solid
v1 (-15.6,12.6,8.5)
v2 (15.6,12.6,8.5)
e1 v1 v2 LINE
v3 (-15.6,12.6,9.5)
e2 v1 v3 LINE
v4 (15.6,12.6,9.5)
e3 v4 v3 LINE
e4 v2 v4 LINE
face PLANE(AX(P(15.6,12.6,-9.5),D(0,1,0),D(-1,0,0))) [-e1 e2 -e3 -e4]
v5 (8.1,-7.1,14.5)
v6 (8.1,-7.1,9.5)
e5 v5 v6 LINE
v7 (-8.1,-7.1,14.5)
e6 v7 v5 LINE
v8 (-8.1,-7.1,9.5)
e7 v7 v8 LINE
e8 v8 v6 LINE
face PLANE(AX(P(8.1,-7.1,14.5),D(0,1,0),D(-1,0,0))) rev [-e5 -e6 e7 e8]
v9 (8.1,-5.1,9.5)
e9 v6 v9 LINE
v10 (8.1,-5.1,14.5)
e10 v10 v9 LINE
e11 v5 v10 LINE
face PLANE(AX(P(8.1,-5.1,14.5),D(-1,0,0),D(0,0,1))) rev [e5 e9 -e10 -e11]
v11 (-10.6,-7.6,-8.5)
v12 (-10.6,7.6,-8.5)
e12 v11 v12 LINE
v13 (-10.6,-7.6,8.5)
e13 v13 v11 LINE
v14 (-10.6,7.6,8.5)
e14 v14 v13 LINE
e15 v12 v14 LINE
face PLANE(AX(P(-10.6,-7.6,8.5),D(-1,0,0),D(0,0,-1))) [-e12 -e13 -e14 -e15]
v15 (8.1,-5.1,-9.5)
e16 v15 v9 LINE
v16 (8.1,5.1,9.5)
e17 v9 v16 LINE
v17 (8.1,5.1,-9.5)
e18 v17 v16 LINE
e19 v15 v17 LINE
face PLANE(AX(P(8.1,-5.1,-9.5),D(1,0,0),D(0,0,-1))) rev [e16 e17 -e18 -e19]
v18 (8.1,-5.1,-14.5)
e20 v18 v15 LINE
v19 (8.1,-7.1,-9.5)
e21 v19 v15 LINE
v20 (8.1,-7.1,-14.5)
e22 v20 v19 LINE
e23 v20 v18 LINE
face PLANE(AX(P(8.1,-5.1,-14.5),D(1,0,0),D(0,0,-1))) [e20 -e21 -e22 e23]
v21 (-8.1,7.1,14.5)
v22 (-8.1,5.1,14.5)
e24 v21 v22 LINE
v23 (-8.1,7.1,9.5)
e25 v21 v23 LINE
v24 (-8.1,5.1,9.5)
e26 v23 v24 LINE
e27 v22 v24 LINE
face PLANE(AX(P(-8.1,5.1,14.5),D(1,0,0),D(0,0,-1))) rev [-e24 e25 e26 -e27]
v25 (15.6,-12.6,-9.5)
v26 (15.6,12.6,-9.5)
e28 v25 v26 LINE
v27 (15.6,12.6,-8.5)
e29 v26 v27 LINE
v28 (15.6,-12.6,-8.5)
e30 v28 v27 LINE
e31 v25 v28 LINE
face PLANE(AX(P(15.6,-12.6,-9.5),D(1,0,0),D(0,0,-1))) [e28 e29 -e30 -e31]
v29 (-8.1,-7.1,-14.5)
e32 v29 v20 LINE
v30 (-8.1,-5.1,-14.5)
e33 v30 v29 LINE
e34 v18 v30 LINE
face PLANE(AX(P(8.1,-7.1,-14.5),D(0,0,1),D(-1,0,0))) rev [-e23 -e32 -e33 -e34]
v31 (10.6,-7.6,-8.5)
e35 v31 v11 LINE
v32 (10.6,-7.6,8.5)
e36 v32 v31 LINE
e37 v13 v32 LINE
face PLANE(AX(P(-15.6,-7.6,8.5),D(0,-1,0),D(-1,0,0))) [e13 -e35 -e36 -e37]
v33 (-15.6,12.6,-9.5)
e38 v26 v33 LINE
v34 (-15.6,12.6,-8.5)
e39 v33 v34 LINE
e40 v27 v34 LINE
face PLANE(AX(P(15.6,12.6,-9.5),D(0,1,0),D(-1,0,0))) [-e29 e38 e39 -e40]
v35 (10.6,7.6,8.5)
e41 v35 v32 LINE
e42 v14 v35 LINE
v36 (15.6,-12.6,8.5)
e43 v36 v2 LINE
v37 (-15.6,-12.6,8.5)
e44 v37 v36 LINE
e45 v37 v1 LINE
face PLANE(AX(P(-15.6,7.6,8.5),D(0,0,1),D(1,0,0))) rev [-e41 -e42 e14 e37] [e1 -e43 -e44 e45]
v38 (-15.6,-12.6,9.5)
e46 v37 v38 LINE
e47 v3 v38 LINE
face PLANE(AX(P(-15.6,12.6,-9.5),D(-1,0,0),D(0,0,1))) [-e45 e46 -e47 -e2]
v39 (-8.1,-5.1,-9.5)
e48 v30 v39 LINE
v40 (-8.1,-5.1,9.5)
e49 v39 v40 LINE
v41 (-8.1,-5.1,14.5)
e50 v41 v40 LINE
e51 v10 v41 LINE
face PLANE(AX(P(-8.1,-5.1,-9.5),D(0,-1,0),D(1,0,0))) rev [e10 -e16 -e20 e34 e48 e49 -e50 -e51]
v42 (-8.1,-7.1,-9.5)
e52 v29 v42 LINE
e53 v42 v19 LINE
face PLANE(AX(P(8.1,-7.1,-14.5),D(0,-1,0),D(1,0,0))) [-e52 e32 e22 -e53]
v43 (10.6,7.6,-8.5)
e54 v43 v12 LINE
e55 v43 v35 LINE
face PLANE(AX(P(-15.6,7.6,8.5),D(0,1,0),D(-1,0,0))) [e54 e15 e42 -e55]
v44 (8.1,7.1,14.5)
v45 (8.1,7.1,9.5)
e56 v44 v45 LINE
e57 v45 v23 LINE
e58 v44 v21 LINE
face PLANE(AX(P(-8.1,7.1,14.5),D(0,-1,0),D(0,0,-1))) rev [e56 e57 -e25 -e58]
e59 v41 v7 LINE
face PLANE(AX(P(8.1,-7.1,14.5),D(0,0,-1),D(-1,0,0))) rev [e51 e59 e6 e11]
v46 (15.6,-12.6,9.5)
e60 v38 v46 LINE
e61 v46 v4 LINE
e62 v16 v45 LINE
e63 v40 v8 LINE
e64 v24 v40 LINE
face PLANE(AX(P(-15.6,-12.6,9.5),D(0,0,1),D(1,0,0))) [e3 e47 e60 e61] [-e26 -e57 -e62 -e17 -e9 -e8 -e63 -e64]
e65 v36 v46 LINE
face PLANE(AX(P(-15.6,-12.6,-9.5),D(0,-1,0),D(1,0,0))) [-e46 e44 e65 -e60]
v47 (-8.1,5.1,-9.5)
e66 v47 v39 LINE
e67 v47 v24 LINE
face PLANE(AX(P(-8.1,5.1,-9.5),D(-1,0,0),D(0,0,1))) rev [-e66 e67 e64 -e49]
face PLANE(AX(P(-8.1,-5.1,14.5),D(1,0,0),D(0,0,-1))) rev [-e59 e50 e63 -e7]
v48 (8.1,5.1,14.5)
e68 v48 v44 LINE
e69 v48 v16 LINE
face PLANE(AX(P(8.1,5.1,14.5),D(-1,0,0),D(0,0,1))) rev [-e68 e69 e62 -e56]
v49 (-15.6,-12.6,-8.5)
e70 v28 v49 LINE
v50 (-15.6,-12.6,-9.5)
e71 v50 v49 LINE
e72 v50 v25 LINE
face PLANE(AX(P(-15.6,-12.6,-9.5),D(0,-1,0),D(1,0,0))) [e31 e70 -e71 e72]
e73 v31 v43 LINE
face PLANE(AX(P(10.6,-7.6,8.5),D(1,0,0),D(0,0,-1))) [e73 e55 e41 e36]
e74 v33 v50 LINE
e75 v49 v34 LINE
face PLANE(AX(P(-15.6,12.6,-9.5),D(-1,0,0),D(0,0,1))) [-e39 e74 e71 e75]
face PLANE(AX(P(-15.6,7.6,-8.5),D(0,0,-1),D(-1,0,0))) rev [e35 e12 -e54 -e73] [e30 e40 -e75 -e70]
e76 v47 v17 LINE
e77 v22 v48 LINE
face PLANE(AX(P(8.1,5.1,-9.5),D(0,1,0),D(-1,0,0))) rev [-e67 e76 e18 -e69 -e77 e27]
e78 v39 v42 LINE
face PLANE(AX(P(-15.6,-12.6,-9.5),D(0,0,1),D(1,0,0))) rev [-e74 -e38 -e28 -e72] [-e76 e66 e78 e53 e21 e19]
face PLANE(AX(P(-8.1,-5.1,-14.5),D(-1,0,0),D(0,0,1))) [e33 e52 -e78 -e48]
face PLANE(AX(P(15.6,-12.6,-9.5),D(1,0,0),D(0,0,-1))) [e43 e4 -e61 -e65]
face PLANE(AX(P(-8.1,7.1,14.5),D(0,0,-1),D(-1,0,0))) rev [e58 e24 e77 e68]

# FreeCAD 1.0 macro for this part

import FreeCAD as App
import Part
import Sketcher
Q = App.Units.Quantity

doc = App.newDocument("Part")
body = doc.addObject("PartDesign::Body", "Body")

sketch1 = body.newObject("Sketcher::SketchObject", "Sketch")
sketch1.AttachmentSupport = (doc.getObject("XY_Plane"), [""])
sketch1.MapMode = "FlatFace"
sketch1.addGeometry([
    Part.LineSegment(App.Vector(-16, 13, 0), App.Vector(-16, -13, 0)),
    Part.LineSegment(App.Vector(-16, -13, 0), App.Vector(16, -13, 0)),
    Part.LineSegment(App.Vector(16, -13, 0), App.Vector(16, 13, 0)),
    Part.LineSegment(App.Vector(16, 13, 0), App.Vector(-16, 13, 0)),
    Part.LineSegment(App.Vector(8, -5, 0), App.Vector(-8, -5, 0)),
    Part.LineSegment(App.Vector(-8, -5, 0), App.Vector(-8, 5, 0)),
    Part.LineSegment(App.Vector(-8, 5, 0), App.Vector(8, 5, 0)),
    Part.LineSegment(App.Vector(8, 5, 0), App.Vector(8, -5, 0)),
], False)
sketch1.addConstraint([
    Sketcher.Constraint("Coincident", 0, 2, 1, 1),
    Sketcher.Constraint("Coincident", 1, 2, 2, 1),
    Sketcher.Constraint("Coincident", 2, 2, 3, 1),
    Sketcher.Constraint("Coincident", 3, 2, 0, 1),
    Sketcher.Constraint("Coincident", 4, 2, 5, 1),
    Sketcher.Constraint("Coincident", 5, 2, 6, 1),
    Sketcher.Constraint("Coincident", 6, 2, 7, 1),
    Sketcher.Constraint("Coincident", 7, 2, 4, 1),
    Sketcher.Constraint("Vertical", 0),
    Sketcher.Constraint("Horizontal", 1),
    Sketcher.Constraint("Vertical", 2),
    Sketcher.Constraint("Horizontal", 3),
    Sketcher.Constraint("Horizontal", 4),
    Sketcher.Constraint("Vertical", 5),
    Sketcher.Constraint("Horizontal", 6),
    Sketcher.Constraint("Vertical", 7),
    Sketcher.Constraint("Symmetric", 0, 2, 2, 2, -1, 1),
    Sketcher.Constraint("Symmetric", 4, 2, 6, 2, -1, 1),
    Sketcher.Constraint("DistanceX", 1, 1, 1, 2, Q("31.2 mm")),
    Sketcher.Constraint("DistanceX", 4, 2, 4, 1, Q("16.2 mm")),
    Sketcher.Constraint("DistanceY", 0, 2, 0, 1, Q("25.2 mm")),
    Sketcher.Constraint("DistanceY", 5, 1, 5, 2, Q("10.2 mm")),
])
pad1 = body.newObject("PartDesign::Pad", "Pad")
pad1.Profile = sketch1
pad1.Type = "TwoLengths"
pad1.Length = 9.5
pad1.Length2 = 9.5

sketch2 = body.newObject("Sketcher::SketchObject", "Sketch001")
sketch2.AttachmentSupport = (doc.getObject("XZ_Plane"), [""])
sketch2.MapMode = "FlatFace"
sketch2.AttachmentOffset = App.Placement(App.Vector(0, 0, -12.6), App.Rotation())
sketch2.addGeometry([
    Part.LineSegment(App.Vector(-16, -8, 0), App.Vector(-16, 8, 0)),
    Part.LineSegment(App.Vector(-16, 8, 0), App.Vector(16, 8, 0)),
    Part.LineSegment(App.Vector(16, 8, 0), App.Vector(16, -8, 0)),
    Part.LineSegment(App.Vector(16, -8, 0), App.Vector(-16, -8, 0)),
], False)
sketch2.addConstraint([
    Sketcher.Constraint("Coincident", 0, 2, 1, 1),
    Sketcher.Constraint("Coincident", 1, 2, 2, 1),
    Sketcher.Constraint("Coincident", 2, 2, 3, 1),
    Sketcher.Constraint("Coincident", 3, 2, 0, 1),
    Sketcher.Constraint("Vertical", 0),
    Sketcher.Constraint("Horizontal", 1),
    Sketcher.Constraint("Vertical", 2),
    Sketcher.Constraint("Horizontal", 3),
    Sketcher.Constraint("Symmetric", 0, 2, 2, 2, -1, 1),
    Sketcher.Constraint("DistanceY", 0, 1, 0, 2, Q("17 mm")),
    Sketcher.Constraint("DistanceX", 1, 1, 1, 2, Q("31.2 mm")),
])
pocket1 = body.newObject("PartDesign::Pocket", "Pocket")
pocket1.Profile = sketch2
pocket1.Length = 5
pocket1.Reversed = True
doc.recompute()

mirrored = body.newObject("PartDesign::Mirrored", "Mirrored")
mirrored.Originals = [pocket1]
mirrored.MirrorPlane = (doc.getObject("XZ_Plane"), [""])
body.Tip = mirrored

sketch3 = body.newObject("Sketcher::SketchObject", "Sketch002")
sketch3.AttachmentSupport = (doc.getObject("YZ_Plane"), [""])
sketch3.MapMode = "FlatFace"
sketch3.AttachmentOffset = App.Placement(App.Vector(0, 0, 15.6), App.Rotation())
sketch3.addGeometry([
    Part.LineSegment(App.Vector(8, 8, 0), App.Vector(-8, 8, 0)),
    Part.LineSegment(App.Vector(-8, 8, 0), App.Vector(-8, -8, 0)),
    Part.LineSegment(App.Vector(-8, -8, 0), App.Vector(8, -8, 0)),
    Part.LineSegment(App.Vector(8, -8, 0), App.Vector(8, 8, 0)),
], False)
sketch3.addConstraint([
    Sketcher.Constraint("Coincident", 0, 2, 1, 1),
    Sketcher.Constraint("Coincident", 1, 2, 2, 1),
    Sketcher.Constraint("Coincident", 2, 2, 3, 1),
    Sketcher.Constraint("Coincident", 3, 2, 0, 1),
    Sketcher.Constraint("Horizontal", 0),
    Sketcher.Constraint("Vertical", 1),
    Sketcher.Constraint("Horizontal", 2),
    Sketcher.Constraint("Vertical", 3),
    Sketcher.Constraint("Symmetric", 0, 2, 2, 2, -1, 1),
    Sketcher.Constraint("DistanceY", 1, 2, 1, 1, Q("17 mm")),
    Sketcher.Constraint("DistanceX", 0, 2, 0, 1, Q("15.2 mm")),
])
pocket2 = body.newObject("PartDesign::Pocket", "Pocket001")
pocket2.Profile = sketch3
pocket2.Length = 5
doc.recompute()

mirrored2 = body.newObject("PartDesign::Mirrored", "Mirrored001")
mirrored2.Originals = [pocket2]
mirrored2.MirrorPlane = (doc.getObject("YZ_Plane"), [""])
body.Tip = mirrored2

sketch4 = body.newObject("Sketcher::SketchObject", "Sketch003")
sketch4.AttachmentSupport = (doc.getObject("XY_Plane"), [""])
sketch4.MapMode = "FlatFace"
sketch4.AttachmentOffset = App.Placement(App.Vector(0, 0, 9.5), App.Rotation())
sketch4.addGeometry([
    Part.LineSegment(App.Vector(-8.1, 7.1, 0), App.Vector(-8.1, 5.1, 0)),
    Part.LineSegment(App.Vector(-8.1, 5.1, 0), App.Vector(8.1, 5.1, 0)),
    Part.LineSegment(App.Vector(8.1, 5.1, 0), App.Vector(8.1, 7.1, 0)),
    Part.LineSegment(App.Vector(8.1, 7.1, 0), App.Vector(-8.1, 7.1, 0)),
    Part.LineSegment(App.Vector(-8.1, -5.1, 0), App.Vector(-8.1, -7.1, 0)),
    Part.LineSegment(App.Vector(-8.1, -7.1, 0), App.Vector(8.1, -7.1, 0)),
    Part.LineSegment(App.Vector(8.1, -7.1, 0), App.Vector(8.1, -5.1, 0)),
    Part.LineSegment(App.Vector(8.1, -5.1, 0), App.Vector(-8.1, -5.1, 0)),
], False)
sketch4.addConstraint([
    Sketcher.Constraint("Coincident", 0, 2, 1, 1),
    Sketcher.Constraint("Coincident", 1, 2, 2, 1),
    Sketcher.Constraint("Coincident", 2, 2, 3, 1),
    Sketcher.Constraint("Coincident", 3, 2, 0, 1),
    Sketcher.Constraint("Coincident", 4, 2, 5, 1),
    Sketcher.Constraint("Coincident", 5, 2, 6, 1),
    Sketcher.Constraint("Coincident", 6, 2, 7, 1),
    Sketcher.Constraint("Coincident", 7, 2, 4, 1),
    Sketcher.Constraint("Vertical", 0),
    Sketcher.Constraint("Horizontal", 1),
    Sketcher.Constraint("Vertical", 2),
    Sketcher.Constraint("Horizontal", 3),
    Sketcher.Constraint("Vertical", 4),
    Sketcher.Constraint("Horizontal", 5),
    Sketcher.Constraint("Vertical", 6),
    Sketcher.Constraint("Horizontal", 7),
    Sketcher.Constraint("Symmetric", 2, 2, 4, 2, -1, 1),
    Sketcher.Constraint("Symmetric", 0, 2, 6, 2, -1, 1),
    Sketcher.Constraint("Vertical", 3, 2, 4, 2),
    Sketcher.Constraint("DistanceY", 0, 2, 0, 1, Q("2 mm")),
    Sketcher.Constraint("DistanceX", 1, 1, 1, 2, Q("16.2 mm")),
    Sketcher.Constraint("DistanceY", -1, 1, 0, 2, Q("5.1 mm")),
])
pad2 = body.newObject("PartDesign::Pad", "Pad001")
pad2.Profile = sketch4
pad2.Length = 5
doc.recompute()

mirrored3 = body.newObject("PartDesign::Mirrored", "Mirrored002")
mirrored3.Originals = [pad2]
mirrored3.MirrorPlane = (doc.getObject("XY_Plane"), [""])
body.Tip = mirrored3

sketch5 = body.newObject("Sketcher::SketchObject", "Sketch004")
sketch5.AttachmentSupport = (doc.getObject("XZ_Plane"), [""])
sketch5.MapMode = "FlatFace"
sketch5.AttachmentOffset = App.Placement(App.Vector(0, 0, -7.1), App.Rotation())
sketch5.addGeometry([
    Part.LineSegment(App.Vector(-8, -14, 0), App.Vector(-8, -10, 0)),
    Part.LineSegment(App.Vector(-8, -10, 0), App.Vector(8, -10, 0)),
    Part.LineSegment(App.Vector(8, -10, 0), App.Vector(8, -14, 0)),
    Part.LineSegment(App.Vector(8, -14, 0), App.Vector(-8, -14, 0)),
], False)
sketch5.addConstraint([
    Sketcher.Constraint("Coincident", 0, 2, 1, 1),
    Sketcher.Constraint("Coincident", 1, 2, 2, 1),
    Sketcher.Constraint("Coincident", 2, 2, 3, 1),
    Sketcher.Constraint("Coincident", 3, 2, 0, 1),
    Sketcher.Constraint("Vertical", 0),
    Sketcher.Constraint("Horizontal", 1),
    Sketcher.Constraint("Vertical", 2),
    Sketcher.Constraint("Horizontal", 3),
    Sketcher.Constraint("DistanceY", 0, 1, 0, 2, Q("5 mm")),
    Sketcher.Constraint("DistanceX", 1, 1, 1, 2, Q("16.2 mm")),
    Sketcher.Constraint("DistanceX", 0, 2, -1, 1, Q("8.1 mm")),
    Sketcher.Constraint("DistanceY", 0, 2, -1, 1, Q("9.5 mm")),
])
pocket3 = body.newObject("PartDesign::Pocket", "Pocket002")
pocket3.Profile = sketch5
pocket3.Length = 2
pocket3.Reversed = True

doc.recompute()
